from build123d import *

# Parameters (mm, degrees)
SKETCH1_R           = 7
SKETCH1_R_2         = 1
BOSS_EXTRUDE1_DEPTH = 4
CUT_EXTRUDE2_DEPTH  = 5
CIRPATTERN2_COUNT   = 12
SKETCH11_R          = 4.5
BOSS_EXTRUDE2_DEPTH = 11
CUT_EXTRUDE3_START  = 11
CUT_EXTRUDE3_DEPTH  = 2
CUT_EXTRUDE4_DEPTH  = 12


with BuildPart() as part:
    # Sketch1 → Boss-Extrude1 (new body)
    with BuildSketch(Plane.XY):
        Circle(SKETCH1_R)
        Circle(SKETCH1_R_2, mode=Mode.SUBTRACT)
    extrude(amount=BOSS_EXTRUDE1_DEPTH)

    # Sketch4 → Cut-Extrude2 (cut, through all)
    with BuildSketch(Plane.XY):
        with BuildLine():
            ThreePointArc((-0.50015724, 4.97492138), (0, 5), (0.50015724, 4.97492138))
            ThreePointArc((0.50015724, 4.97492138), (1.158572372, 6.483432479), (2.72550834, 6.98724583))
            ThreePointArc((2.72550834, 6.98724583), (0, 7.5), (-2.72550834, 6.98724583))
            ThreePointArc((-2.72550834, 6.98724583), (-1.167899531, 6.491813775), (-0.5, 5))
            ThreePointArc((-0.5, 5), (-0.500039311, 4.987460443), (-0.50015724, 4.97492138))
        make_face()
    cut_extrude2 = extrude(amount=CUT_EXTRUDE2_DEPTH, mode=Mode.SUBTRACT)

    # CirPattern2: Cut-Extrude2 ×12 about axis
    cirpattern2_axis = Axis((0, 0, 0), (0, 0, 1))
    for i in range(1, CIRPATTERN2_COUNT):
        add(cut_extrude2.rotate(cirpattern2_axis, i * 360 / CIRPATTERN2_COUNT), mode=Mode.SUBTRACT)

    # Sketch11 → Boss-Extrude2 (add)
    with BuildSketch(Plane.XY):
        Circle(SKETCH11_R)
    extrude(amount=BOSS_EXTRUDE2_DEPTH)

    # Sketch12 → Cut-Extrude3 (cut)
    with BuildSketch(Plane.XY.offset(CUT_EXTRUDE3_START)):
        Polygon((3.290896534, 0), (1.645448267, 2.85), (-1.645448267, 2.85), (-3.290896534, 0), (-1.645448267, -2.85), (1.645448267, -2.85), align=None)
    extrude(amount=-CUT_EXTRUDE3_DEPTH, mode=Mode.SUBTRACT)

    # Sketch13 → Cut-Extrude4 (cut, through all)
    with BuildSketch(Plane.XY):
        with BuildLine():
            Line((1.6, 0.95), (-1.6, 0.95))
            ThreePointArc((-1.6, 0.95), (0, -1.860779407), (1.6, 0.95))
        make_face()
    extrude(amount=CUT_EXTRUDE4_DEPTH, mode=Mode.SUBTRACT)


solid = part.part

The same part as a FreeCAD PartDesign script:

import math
import FreeCAD as App
import Part
import Sketcher

V = App.Vector
Q = App.Units.Quantity

doc = App.newDocument("Part")
params = doc.addObject("Spreadsheet::Sheet", "Params")
for row, (alias, value) in enumerate([
    ("sketch1_diameter", "14 mm"),
    ("sketch1_diameter2", "2 mm"),
    ("pad1_length", "4 mm"),
    ("sketch2_radius", "5 mm"),
    ("sketch2_radius2", "2 mm"),
    ("sketch2_radius3", "7.5 mm"),
    ("sketch3_diameter", "9 mm"),
    ("pad2_length", "11 mm"),
    ("pocket2_length", "2 mm"),
    ("sketch5_width", "3.2 mm"),
], start=1):
    params.set(f"A{row}", alias)
    params.set(f"B{row}", "=" + value)
    params.setAlias(f"B{row}", alias)

body = doc.addObject("PartDesign::Body", "Body")

sketch1 = doc.addObject("Sketcher::SketchObject", "Sketch")
body.addObject(sketch1)
sketch1.AttachmentSupport = (doc.XY_Plane, [""])
sketch1.MapMode = "FlatFace"
sketch1.addGeometry(Part.Circle(V(0, 0, 0), V(0, 0, 1), 7), False)
sketch1.addGeometry(Part.Circle(V(0, 0, 0), V(0, 0, 1), 1), False)
sketch1.addConstraint(Sketcher.Constraint("Coincident", 0, 3, -1, 1))
sketch1.addConstraint(Sketcher.Constraint("Coincident", 1, 3, -1, 1))
sketch1.addConstraint(Sketcher.Constraint("Diameter", 0, Q("14 mm")))
sketch1.addConstraint(Sketcher.Constraint("Diameter", 1, Q("2 mm")))
sketch1.setExpression("Constraints[2]", "Params.sketch1_diameter")
sketch1.setExpression("Constraints[3]", "Params.sketch1_diameter2")
pad1 = doc.addObject("PartDesign::Pad", "Pad")
body.addObject(pad1)
pad1.Profile = sketch1
pad1.setExpression("Length", "Params.pad1_length")

sketch2 = doc.addObject("Sketcher::SketchObject", "Sketch001")
body.addObject(sketch2)
sketch2.AttachmentSupport = (doc.XY_Plane, [""])
sketch2.MapMode = "FlatFace"
sketch2.addGeometry(Part.ArcOfCircle(Part.Circle(V(0, 0, 0), V(0, 0, 1), 5), math.radians(84.26), math.radians(95.74)), False)
sketch2.addGeometry(Part.ArcOfCircle(Part.Circle(V(2.5, 5, 0), V(0, 0, 1), 2), math.radians(84), math.radians(181)), False)
sketch2.addGeometry(Part.ArcOfCircle(Part.Circle(V(0, 0, 0), V(0, 0, 1), 7.5), math.radians(69), math.radians(111)), False)
sketch2.addGeometry(Part.ArcOfCircle(Part.Circle(V(-2.5, 5, 0), V(0, 0, 1), 2), math.radians(0), math.radians(96)), False)
sketch2.addGeometry(Part.ArcOfCircle(Part.Circle(V(-2.5, 5, 0), V(0, 0, 1), 2), math.radians(-0.72), math.radians(0)), False)
sketch2.addConstraint(Sketcher.Constraint("Coincident", 0, 1, 1, 2))
sketch2.addConstraint(Sketcher.Constraint("Coincident", 1, 1, 2, 1))
sketch2.addConstraint(Sketcher.Constraint("Coincident", 2, 2, 3, 2))
sketch2.addConstraint(Sketcher.Constraint("Tangent", 3, 1, 4, 2))
sketch2.addConstraint(Sketcher.Constraint("Coincident", 4, 1, 0, 2))
sketch2.addConstraint(Sketcher.Constraint("Coincident", 0, 3, -1, 1))
sketch2.addConstraint(Sketcher.Constraint("Coincident", 2, 3, -1, 1))
sketch2.addConstraint(Sketcher.Constraint("Equal", 1, 3))
sketch2.addConstraint(Sketcher.Constraint("Symmetric", 1, 3, 3, 3, -2))
sketch2.addConstraint(Sketcher.Constraint("Horizontal", 4, 3, 3, 1))
sketch2.addConstraint(Sketcher.Constraint("Radius", 0, Q("5 mm")))
sketch2.addConstraint(Sketcher.Constraint("Radius", 1, Q("2 mm")))
sketch2.addConstraint(Sketcher.Constraint("Radius", 2, Q("7.5 mm")))
sketch2.addConstraint(Sketcher.Constraint("DistanceY", -1, 1, 1, 3, Q("5 mm")))
sketch2.addConstraint(Sketcher.Constraint("DistanceX", 3, 3, 1, 3, Q("5 mm")))
sketch2.addConstraint(Sketcher.Constraint("Radius", 4, Q("2.000037 mm")))
sketch2.setExpression("Constraints[10]", "Params.sketch2_radius")
sketch2.setExpression("Constraints[11]", "Params.sketch2_radius2")
sketch2.setExpression("Constraints[12]", "Params.sketch2_radius3")
pocket1 = doc.addObject("PartDesign::Pocket", "Pocket")
body.addObject(pocket1)
pocket1.Profile = sketch2
pocket1.Type = "ThroughAll"
pocket1.Reversed = True
doc.recompute()

polarpattern = doc.addObject("PartDesign::PolarPattern", "PolarPattern")
body.addObject(polarpattern)
polarpattern.Originals = [pocket1]
polarpattern.Axis = (doc.Z_Axis, [""])
polarpattern.Angle = 360
polarpattern.Occurrences = 12
body.Tip = polarpattern

sketch3 = doc.addObject("Sketcher::SketchObject", "Sketch002")
body.addObject(sketch3)
sketch3.AttachmentSupport = (doc.XY_Plane, [""])
sketch3.MapMode = "FlatFace"
sketch3.addGeometry(Part.Circle(V(0, 0, 0), V(0, 0, 1), 4.5), False)
sketch3.addConstraint(Sketcher.Constraint("Coincident", 0, 3, -1, 1))
sketch3.addConstraint(Sketcher.Constraint("Diameter", 0, Q("9 mm")))
sketch3.setExpression("Constraints[1]", "Params.sketch3_diameter")
pad2 = doc.addObject("PartDesign::Pad", "Pad001")
body.addObject(pad2)
pad2.Profile = sketch3
pad2.setExpression("Length", "Params.pad2_length")

sketch4 = doc.addObject("Sketcher::SketchObject", "Sketch003")
body.addObject(sketch4)
sketch4.AttachmentSupport = (doc.XY_Plane, [""])
sketch4.MapMode = "FlatFace"
sketch4.AttachmentOffset = App.Placement(V(0, 0, 11), App.Rotation())
sketch4.addGeometry(Part.LineSegment(V(3.3, 0, 0), V(1.6, 2.9, 0)), False)
sketch4.addGeometry(Part.LineSegment(V(1.6, 2.9, 0), V(-1.6, 2.9, 0)), False)
sketch4.addGeometry(Part.LineSegment(V(-1.6, 2.9, 0), V(-3.3, 0, 0)), False)
sketch4.addGeometry(Part.LineSegment(V(-3.3, 0, 0), V(-1.6, -2.9, 0)), False)
sketch4.addGeometry(Part.LineSegment(V(-1.6, -2.9, 0), V(1.6, -2.9, 0)), False)
sketch4.addGeometry(Part.LineSegment(V(1.6, -2.9, 0), V(3.3, 0, 0)), False)
sketch4.addConstraint(Sketcher.Constraint("Coincident", 0, 2, 1, 1))
sketch4.addConstraint(Sketcher.Constraint("Coincident", 1, 2, 2, 1))
sketch4.addConstraint(Sketcher.Constraint("Coincident", 2, 2, 3, 1))
sketch4.addConstraint(Sketcher.Constraint("Coincident", 3, 2, 4, 1))
sketch4.addConstraint(Sketcher.Constraint("Coincident", 4, 2, 5, 1))
sketch4.addConstraint(Sketcher.Constraint("Coincident", 5, 2, 0, 1))
sketch4.addConstraint(Sketcher.Constraint("Horizontal", 1))
sketch4.addConstraint(Sketcher.Constraint("Horizontal", 4))
sketch4.addConstraint(Sketcher.Constraint("Symmetric", 0, 2, 3, 2, -1, 1))
sketch4.addConstraint(Sketcher.Constraint("Symmetric", 2, 2, 5, 2, -1, 1))
sketch4.addConstraint(Sketcher.Constraint("PointOnObject", 2, 2, -1))
sketch4.addConstraint(Sketcher.Constraint("Parallel", 2, 5))
sketch4.addConstraint(Sketcher.Constraint("Vertical", 1, 2, 3, 2))
sketch4.addConstraint(Sketcher.Constraint("Angle", 0, Q("120 deg")))
sketch4.addConstraint(Sketcher.Constraint("DistanceY", 3, 2, 1, 2, Q("5.7 mm")))
sketch4.addConstraint(Sketcher.Constraint("DistanceX", 1, 2, 1, 1, Q("3.290897 mm")))
pocket2 = doc.addObject("PartDesign::Pocket", "Pocket001")
body.addObject(pocket2)
pocket2.Profile = sketch4
pocket2.setExpression("Length", "Params.pocket2_length")

sketch5 = doc.addObject("Sketcher::SketchObject", "Sketch004")
body.addObject(sketch5)
sketch5.AttachmentSupport = (doc.XY_Plane, [""])
sketch5.MapMode = "FlatFace"
sketch5.addGeometry(Part.LineSegment(V(1.6, 0.9, 0), V(-1.6, 0.9, 0)), False)
sketch5.addGeometry(Part.ArcOfCircle(Part.Circle(V(0, 0, 0), V(0, 0, 1), 1.9), math.radians(149), math.radians(391)), False)
sketch5.addConstraint(Sketcher.Constraint("Coincident", 0, 1, 1, 2))
sketch5.addConstraint(Sketcher.Constraint("Coincident", 1, 1, 0, 2))
sketch5.addConstraint(Sketcher.Constraint("Horizontal", 0))
sketch5.addConstraint(Sketcher.Constraint("Coincident", 1, 3, -1, 1))
sketch5.addConstraint(Sketcher.Constraint("DistanceX", 0, 2, 0, 1, Q("3.2 mm")))
sketch5.addConstraint(Sketcher.Constraint("DistanceY", -1, 1, 0, 1, Q("0.95 mm")))
sketch5.setExpression("Constraints[4]", "Params.sketch5_width")
pocket3 = doc.addObject("PartDesign::Pocket", "Pocket002")
body.addObject(pocket3)
pocket3.Profile = sketch5
pocket3.Type = "ThroughAll"
pocket3.Reversed = True

doc.recompute()
